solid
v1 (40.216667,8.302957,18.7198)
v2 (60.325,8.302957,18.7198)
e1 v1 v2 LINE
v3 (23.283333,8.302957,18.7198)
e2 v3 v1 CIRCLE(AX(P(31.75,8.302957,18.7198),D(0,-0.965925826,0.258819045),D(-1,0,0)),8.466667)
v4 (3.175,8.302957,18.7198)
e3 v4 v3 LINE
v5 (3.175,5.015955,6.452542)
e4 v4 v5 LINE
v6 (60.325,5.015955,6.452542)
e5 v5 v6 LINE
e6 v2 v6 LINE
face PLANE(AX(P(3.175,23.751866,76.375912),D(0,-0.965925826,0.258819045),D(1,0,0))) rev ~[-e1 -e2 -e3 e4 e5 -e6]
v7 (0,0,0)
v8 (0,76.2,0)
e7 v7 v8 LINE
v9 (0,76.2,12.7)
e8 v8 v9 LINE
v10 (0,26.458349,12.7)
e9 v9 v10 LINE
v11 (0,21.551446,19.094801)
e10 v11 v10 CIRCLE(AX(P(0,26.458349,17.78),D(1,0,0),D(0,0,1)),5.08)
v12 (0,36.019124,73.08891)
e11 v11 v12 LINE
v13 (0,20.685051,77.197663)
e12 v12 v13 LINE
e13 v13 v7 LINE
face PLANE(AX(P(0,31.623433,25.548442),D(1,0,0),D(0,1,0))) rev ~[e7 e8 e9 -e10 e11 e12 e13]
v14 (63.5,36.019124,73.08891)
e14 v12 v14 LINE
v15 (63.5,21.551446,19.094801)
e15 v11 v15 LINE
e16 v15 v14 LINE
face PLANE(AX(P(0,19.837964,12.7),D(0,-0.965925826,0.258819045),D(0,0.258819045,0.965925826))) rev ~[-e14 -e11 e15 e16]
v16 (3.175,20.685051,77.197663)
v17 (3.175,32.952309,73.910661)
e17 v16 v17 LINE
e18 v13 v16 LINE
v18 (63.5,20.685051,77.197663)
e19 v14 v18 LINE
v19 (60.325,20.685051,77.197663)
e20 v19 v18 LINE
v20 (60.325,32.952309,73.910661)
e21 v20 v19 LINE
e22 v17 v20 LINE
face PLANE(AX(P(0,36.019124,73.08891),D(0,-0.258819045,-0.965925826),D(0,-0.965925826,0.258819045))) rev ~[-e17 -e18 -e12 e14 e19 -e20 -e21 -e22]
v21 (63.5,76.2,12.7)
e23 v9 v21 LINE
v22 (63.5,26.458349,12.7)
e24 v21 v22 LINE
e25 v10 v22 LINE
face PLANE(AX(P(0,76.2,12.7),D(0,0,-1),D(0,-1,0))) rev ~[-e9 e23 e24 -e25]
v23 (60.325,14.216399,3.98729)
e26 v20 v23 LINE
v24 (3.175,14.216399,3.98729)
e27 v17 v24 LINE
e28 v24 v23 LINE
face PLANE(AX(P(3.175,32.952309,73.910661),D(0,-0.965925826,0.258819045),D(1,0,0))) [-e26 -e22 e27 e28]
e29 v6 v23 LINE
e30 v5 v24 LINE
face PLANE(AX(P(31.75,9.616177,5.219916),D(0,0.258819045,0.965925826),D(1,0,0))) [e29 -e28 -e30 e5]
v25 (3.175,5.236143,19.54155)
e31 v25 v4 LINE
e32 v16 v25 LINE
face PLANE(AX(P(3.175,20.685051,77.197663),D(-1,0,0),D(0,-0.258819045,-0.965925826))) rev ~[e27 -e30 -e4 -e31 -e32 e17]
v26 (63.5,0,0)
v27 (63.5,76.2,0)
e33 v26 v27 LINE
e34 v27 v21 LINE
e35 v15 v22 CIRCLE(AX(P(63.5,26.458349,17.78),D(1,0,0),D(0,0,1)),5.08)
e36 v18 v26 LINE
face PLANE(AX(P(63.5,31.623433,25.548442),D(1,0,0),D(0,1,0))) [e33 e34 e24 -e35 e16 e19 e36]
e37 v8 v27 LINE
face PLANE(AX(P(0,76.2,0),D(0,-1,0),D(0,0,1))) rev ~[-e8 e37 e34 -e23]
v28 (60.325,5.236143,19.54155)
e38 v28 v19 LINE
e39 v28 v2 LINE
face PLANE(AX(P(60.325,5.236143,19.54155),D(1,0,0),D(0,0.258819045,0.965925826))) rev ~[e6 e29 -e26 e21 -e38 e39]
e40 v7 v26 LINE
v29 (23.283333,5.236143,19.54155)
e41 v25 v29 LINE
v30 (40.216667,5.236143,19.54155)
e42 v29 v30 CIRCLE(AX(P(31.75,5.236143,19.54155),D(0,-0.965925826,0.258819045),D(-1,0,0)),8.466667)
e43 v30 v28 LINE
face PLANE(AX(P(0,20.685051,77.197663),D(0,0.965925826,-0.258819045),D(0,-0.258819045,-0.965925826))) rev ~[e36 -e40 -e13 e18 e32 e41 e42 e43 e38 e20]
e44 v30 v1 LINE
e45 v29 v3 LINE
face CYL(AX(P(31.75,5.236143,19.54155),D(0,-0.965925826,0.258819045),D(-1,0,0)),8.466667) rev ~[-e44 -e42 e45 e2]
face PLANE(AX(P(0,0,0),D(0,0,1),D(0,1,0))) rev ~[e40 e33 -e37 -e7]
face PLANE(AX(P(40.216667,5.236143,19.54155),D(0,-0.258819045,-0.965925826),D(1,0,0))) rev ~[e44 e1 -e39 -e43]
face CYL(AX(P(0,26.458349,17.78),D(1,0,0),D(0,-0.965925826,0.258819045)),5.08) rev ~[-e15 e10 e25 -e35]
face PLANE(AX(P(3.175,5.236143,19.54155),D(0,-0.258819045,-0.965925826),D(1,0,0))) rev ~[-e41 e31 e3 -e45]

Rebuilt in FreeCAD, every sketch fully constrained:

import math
import FreeCAD as App
import Part
import Sketcher
Q = App.Units.Quantity


def edges_at(feature, points):
    """Names of the edges that pass closest to the given points."""
    edges = feature.Shape.Edges
    near = lambda p: min(range(len(edges)), key=lambda i: edges[i].distToShape(Part.Vertex(*p))[0])
    return sorted({f"Edge{near(p) + 1}" for p in points})


def add_polygon(sketch, points):
    """Adds a closed chain of lines whose ends are joined by coincident constraints."""
    first, n = sketch.GeometryCount, len(points)
    for a, b in zip(points, points[1:] + points[:1]):
        sketch.addGeometry(Part.LineSegment(App.Vector(*a, 0), App.Vector(*b, 0)), False)
    for i in range(n):
        sketch.addConstraint(Sketcher.Constraint("Coincident", first + i, 2, first + (i + 1) % n, 1))

doc = App.newDocument("Part")
body = doc.addObject("PartDesign::Body", "Body")

sketch1 = doc.addObject("Sketcher::SketchObject", "Sketch")
body.addObject(sketch1)
sketch1.AttachmentSupport = (doc.YZ_Plane, [""])
sketch1.MapMode = "FlatFace"
add_polygon(sketch1, [(21, 77), (0, 0), (76, 0), (76, 13), (20, 13), (36, 73)])
sketch1.addConstraint([
    Sketcher.Constraint("Horizontal", 1),
    Sketcher.Constraint("Vertical", 2),
    Sketcher.Constraint("Horizontal", 3),
    Sketcher.Constraint("Coincident", 0, 2, -1, 1),
    Sketcher.Constraint("Parallel", 0, 4),
    Sketcher.Constraint("Perpendicular", 4, 5),
    Sketcher.Constraint("DistanceX", 1, 1, 1, 2, Q("3 in")),
    Sketcher.Constraint("DistanceY", 2, 1, 2, 2, Q("0.5 in")),
    Sketcher.Constraint("Angle", 0, Q("-105 deg")),
    Sketcher.Constraint("Distance", 5, Q("0.625 in")),
    Sketcher.Constraint("Distance", 0, 79.920901),
])
pad1 = doc.addObject("PartDesign::Pad", "Pad")
body.addObject(pad1)
pad1.Profile = sketch1
pad1.Length = Q("2.5 in")

sketch2 = doc.addObject("Sketcher::SketchObject", "Sketch001")
body.addObject(sketch2)
sketch2.Placement = App.Placement(App.Vector(0, 20.685051, 77.197663), App.Rotation(App.Vector(1, 0, 0), App.Vector(0, 0.965925826, -0.258819045), App.Vector(0, 0.258819045, 0.965925826), "ZXY"))
add_polygon(sketch2, [(3, 13), (3, 3), (60, 3), (60, 13)])
sketch2.addConstraint([
    Sketcher.Constraint("Vertical", 0),
    Sketcher.Constraint("Horizontal", 1),
    Sketcher.Constraint("Vertical", 2),
    Sketcher.Constraint("Horizontal", 3),
    Sketcher.Constraint("DistanceX", 1, 1, 1, 2, Q("2.25 in")),
    Sketcher.Constraint("DistanceY", -1, 1, 2, 2, Q("0.5 in")),
    Sketcher.Constraint("DistanceY", 0, 2, 0, 1, Q("0.375 in")),
    Sketcher.Constraint("DistanceX", -1, 1, 0, 2, Q("0.125 in")),
])
pocket1 = doc.addObject("PartDesign::Pocket", "Pocket")
body.addObject(pocket1)
pocket1.Profile = sketch2
pocket1.Length = Q("2.85 in")

sketch3 = doc.addObject("Sketcher::SketchObject", "Sketch002")
body.addObject(sketch3)
sketch3.Placement = App.Placement(App.Vector(0, 0, 0), App.Rotation(App.Vector(1, 0, 0), App.Vector(0, 0.258819045, 0.965925826), App.Vector(0, -0.965925826, 0.258819045), "ZXY"))
sketch3.addGeometry([
    Part.LineSegment(App.Vector(60, 80, 0), App.Vector(3, 80, 0)),
    Part.LineSegment(App.Vector(3, 80, 0), App.Vector(3, 20, 0)),
    Part.LineSegment(App.Vector(3, 20, 0), App.Vector(23, 20, 0)),
    Part.ArcOfCircle(Part.Circle(App.Vector(32, 20, 0), App.Vector(0, 0, 1), 8), math.radians(180), math.radians(360)),
    Part.LineSegment(App.Vector(40, 20, 0), App.Vector(60, 20, 0)),
    Part.LineSegment(App.Vector(60, 20, 0), App.Vector(60, 80, 0)),
], False)
sketch3.addConstraint([
    Sketcher.Constraint("Coincident", 0, 2, 1, 1),
    Sketcher.Constraint("Coincident", 1, 2, 2, 1),
    Sketcher.Constraint("Coincident", 2, 2, 3, 1),
    Sketcher.Constraint("Coincident", 3, 2, 4, 1),
    Sketcher.Constraint("Coincident", 4, 2, 5, 1),
    Sketcher.Constraint("Coincident", 5, 2, 0, 1),
    Sketcher.Constraint("Horizontal", 0),
    Sketcher.Constraint("Vertical", 1),
    Sketcher.Constraint("Horizontal", 2),
    Sketcher.Constraint("Horizontal", 4),
    Sketcher.Constraint("Vertical", 5),
    Sketcher.Constraint("Horizontal", 3, 3, 1, 2),
    Sketcher.Constraint("Horizontal", 2, 2, 3, 2),
    Sketcher.Constraint("Equal", 2, 4),
    Sketcher.Constraint("DistanceX", 0, 2, 0, 1, Q("2.25 in")),
    Sketcher.Constraint("DistanceY", 1, 2, 1, 1, Q("2.35 in")),
    Sketcher.Constraint("DistanceX", -1, 1, 3, 3, Q("1.25 in")),
    Sketcher.Constraint("Radius", 3, 8.466667),
    Sketcher.Constraint("DistanceY", -1, 1, 3, 3, 20.230901),
])
pocket2 = doc.addObject("PartDesign::Pocket", "Pocket001")
body.addObject(pocket2)
pocket2.Profile = sketch3
pocket2.Length = Q("0.125 in")
doc.recompute()

fillet = doc.addObject("PartDesign::Fillet", "Fillet")
body.addObject(fillet)
fillet.Base = (pocket2, edges_at(pocket2, [(31.75, 19.838, 12.7)]))
fillet.Radius = Q("0.2 in")

doc.recompute()
